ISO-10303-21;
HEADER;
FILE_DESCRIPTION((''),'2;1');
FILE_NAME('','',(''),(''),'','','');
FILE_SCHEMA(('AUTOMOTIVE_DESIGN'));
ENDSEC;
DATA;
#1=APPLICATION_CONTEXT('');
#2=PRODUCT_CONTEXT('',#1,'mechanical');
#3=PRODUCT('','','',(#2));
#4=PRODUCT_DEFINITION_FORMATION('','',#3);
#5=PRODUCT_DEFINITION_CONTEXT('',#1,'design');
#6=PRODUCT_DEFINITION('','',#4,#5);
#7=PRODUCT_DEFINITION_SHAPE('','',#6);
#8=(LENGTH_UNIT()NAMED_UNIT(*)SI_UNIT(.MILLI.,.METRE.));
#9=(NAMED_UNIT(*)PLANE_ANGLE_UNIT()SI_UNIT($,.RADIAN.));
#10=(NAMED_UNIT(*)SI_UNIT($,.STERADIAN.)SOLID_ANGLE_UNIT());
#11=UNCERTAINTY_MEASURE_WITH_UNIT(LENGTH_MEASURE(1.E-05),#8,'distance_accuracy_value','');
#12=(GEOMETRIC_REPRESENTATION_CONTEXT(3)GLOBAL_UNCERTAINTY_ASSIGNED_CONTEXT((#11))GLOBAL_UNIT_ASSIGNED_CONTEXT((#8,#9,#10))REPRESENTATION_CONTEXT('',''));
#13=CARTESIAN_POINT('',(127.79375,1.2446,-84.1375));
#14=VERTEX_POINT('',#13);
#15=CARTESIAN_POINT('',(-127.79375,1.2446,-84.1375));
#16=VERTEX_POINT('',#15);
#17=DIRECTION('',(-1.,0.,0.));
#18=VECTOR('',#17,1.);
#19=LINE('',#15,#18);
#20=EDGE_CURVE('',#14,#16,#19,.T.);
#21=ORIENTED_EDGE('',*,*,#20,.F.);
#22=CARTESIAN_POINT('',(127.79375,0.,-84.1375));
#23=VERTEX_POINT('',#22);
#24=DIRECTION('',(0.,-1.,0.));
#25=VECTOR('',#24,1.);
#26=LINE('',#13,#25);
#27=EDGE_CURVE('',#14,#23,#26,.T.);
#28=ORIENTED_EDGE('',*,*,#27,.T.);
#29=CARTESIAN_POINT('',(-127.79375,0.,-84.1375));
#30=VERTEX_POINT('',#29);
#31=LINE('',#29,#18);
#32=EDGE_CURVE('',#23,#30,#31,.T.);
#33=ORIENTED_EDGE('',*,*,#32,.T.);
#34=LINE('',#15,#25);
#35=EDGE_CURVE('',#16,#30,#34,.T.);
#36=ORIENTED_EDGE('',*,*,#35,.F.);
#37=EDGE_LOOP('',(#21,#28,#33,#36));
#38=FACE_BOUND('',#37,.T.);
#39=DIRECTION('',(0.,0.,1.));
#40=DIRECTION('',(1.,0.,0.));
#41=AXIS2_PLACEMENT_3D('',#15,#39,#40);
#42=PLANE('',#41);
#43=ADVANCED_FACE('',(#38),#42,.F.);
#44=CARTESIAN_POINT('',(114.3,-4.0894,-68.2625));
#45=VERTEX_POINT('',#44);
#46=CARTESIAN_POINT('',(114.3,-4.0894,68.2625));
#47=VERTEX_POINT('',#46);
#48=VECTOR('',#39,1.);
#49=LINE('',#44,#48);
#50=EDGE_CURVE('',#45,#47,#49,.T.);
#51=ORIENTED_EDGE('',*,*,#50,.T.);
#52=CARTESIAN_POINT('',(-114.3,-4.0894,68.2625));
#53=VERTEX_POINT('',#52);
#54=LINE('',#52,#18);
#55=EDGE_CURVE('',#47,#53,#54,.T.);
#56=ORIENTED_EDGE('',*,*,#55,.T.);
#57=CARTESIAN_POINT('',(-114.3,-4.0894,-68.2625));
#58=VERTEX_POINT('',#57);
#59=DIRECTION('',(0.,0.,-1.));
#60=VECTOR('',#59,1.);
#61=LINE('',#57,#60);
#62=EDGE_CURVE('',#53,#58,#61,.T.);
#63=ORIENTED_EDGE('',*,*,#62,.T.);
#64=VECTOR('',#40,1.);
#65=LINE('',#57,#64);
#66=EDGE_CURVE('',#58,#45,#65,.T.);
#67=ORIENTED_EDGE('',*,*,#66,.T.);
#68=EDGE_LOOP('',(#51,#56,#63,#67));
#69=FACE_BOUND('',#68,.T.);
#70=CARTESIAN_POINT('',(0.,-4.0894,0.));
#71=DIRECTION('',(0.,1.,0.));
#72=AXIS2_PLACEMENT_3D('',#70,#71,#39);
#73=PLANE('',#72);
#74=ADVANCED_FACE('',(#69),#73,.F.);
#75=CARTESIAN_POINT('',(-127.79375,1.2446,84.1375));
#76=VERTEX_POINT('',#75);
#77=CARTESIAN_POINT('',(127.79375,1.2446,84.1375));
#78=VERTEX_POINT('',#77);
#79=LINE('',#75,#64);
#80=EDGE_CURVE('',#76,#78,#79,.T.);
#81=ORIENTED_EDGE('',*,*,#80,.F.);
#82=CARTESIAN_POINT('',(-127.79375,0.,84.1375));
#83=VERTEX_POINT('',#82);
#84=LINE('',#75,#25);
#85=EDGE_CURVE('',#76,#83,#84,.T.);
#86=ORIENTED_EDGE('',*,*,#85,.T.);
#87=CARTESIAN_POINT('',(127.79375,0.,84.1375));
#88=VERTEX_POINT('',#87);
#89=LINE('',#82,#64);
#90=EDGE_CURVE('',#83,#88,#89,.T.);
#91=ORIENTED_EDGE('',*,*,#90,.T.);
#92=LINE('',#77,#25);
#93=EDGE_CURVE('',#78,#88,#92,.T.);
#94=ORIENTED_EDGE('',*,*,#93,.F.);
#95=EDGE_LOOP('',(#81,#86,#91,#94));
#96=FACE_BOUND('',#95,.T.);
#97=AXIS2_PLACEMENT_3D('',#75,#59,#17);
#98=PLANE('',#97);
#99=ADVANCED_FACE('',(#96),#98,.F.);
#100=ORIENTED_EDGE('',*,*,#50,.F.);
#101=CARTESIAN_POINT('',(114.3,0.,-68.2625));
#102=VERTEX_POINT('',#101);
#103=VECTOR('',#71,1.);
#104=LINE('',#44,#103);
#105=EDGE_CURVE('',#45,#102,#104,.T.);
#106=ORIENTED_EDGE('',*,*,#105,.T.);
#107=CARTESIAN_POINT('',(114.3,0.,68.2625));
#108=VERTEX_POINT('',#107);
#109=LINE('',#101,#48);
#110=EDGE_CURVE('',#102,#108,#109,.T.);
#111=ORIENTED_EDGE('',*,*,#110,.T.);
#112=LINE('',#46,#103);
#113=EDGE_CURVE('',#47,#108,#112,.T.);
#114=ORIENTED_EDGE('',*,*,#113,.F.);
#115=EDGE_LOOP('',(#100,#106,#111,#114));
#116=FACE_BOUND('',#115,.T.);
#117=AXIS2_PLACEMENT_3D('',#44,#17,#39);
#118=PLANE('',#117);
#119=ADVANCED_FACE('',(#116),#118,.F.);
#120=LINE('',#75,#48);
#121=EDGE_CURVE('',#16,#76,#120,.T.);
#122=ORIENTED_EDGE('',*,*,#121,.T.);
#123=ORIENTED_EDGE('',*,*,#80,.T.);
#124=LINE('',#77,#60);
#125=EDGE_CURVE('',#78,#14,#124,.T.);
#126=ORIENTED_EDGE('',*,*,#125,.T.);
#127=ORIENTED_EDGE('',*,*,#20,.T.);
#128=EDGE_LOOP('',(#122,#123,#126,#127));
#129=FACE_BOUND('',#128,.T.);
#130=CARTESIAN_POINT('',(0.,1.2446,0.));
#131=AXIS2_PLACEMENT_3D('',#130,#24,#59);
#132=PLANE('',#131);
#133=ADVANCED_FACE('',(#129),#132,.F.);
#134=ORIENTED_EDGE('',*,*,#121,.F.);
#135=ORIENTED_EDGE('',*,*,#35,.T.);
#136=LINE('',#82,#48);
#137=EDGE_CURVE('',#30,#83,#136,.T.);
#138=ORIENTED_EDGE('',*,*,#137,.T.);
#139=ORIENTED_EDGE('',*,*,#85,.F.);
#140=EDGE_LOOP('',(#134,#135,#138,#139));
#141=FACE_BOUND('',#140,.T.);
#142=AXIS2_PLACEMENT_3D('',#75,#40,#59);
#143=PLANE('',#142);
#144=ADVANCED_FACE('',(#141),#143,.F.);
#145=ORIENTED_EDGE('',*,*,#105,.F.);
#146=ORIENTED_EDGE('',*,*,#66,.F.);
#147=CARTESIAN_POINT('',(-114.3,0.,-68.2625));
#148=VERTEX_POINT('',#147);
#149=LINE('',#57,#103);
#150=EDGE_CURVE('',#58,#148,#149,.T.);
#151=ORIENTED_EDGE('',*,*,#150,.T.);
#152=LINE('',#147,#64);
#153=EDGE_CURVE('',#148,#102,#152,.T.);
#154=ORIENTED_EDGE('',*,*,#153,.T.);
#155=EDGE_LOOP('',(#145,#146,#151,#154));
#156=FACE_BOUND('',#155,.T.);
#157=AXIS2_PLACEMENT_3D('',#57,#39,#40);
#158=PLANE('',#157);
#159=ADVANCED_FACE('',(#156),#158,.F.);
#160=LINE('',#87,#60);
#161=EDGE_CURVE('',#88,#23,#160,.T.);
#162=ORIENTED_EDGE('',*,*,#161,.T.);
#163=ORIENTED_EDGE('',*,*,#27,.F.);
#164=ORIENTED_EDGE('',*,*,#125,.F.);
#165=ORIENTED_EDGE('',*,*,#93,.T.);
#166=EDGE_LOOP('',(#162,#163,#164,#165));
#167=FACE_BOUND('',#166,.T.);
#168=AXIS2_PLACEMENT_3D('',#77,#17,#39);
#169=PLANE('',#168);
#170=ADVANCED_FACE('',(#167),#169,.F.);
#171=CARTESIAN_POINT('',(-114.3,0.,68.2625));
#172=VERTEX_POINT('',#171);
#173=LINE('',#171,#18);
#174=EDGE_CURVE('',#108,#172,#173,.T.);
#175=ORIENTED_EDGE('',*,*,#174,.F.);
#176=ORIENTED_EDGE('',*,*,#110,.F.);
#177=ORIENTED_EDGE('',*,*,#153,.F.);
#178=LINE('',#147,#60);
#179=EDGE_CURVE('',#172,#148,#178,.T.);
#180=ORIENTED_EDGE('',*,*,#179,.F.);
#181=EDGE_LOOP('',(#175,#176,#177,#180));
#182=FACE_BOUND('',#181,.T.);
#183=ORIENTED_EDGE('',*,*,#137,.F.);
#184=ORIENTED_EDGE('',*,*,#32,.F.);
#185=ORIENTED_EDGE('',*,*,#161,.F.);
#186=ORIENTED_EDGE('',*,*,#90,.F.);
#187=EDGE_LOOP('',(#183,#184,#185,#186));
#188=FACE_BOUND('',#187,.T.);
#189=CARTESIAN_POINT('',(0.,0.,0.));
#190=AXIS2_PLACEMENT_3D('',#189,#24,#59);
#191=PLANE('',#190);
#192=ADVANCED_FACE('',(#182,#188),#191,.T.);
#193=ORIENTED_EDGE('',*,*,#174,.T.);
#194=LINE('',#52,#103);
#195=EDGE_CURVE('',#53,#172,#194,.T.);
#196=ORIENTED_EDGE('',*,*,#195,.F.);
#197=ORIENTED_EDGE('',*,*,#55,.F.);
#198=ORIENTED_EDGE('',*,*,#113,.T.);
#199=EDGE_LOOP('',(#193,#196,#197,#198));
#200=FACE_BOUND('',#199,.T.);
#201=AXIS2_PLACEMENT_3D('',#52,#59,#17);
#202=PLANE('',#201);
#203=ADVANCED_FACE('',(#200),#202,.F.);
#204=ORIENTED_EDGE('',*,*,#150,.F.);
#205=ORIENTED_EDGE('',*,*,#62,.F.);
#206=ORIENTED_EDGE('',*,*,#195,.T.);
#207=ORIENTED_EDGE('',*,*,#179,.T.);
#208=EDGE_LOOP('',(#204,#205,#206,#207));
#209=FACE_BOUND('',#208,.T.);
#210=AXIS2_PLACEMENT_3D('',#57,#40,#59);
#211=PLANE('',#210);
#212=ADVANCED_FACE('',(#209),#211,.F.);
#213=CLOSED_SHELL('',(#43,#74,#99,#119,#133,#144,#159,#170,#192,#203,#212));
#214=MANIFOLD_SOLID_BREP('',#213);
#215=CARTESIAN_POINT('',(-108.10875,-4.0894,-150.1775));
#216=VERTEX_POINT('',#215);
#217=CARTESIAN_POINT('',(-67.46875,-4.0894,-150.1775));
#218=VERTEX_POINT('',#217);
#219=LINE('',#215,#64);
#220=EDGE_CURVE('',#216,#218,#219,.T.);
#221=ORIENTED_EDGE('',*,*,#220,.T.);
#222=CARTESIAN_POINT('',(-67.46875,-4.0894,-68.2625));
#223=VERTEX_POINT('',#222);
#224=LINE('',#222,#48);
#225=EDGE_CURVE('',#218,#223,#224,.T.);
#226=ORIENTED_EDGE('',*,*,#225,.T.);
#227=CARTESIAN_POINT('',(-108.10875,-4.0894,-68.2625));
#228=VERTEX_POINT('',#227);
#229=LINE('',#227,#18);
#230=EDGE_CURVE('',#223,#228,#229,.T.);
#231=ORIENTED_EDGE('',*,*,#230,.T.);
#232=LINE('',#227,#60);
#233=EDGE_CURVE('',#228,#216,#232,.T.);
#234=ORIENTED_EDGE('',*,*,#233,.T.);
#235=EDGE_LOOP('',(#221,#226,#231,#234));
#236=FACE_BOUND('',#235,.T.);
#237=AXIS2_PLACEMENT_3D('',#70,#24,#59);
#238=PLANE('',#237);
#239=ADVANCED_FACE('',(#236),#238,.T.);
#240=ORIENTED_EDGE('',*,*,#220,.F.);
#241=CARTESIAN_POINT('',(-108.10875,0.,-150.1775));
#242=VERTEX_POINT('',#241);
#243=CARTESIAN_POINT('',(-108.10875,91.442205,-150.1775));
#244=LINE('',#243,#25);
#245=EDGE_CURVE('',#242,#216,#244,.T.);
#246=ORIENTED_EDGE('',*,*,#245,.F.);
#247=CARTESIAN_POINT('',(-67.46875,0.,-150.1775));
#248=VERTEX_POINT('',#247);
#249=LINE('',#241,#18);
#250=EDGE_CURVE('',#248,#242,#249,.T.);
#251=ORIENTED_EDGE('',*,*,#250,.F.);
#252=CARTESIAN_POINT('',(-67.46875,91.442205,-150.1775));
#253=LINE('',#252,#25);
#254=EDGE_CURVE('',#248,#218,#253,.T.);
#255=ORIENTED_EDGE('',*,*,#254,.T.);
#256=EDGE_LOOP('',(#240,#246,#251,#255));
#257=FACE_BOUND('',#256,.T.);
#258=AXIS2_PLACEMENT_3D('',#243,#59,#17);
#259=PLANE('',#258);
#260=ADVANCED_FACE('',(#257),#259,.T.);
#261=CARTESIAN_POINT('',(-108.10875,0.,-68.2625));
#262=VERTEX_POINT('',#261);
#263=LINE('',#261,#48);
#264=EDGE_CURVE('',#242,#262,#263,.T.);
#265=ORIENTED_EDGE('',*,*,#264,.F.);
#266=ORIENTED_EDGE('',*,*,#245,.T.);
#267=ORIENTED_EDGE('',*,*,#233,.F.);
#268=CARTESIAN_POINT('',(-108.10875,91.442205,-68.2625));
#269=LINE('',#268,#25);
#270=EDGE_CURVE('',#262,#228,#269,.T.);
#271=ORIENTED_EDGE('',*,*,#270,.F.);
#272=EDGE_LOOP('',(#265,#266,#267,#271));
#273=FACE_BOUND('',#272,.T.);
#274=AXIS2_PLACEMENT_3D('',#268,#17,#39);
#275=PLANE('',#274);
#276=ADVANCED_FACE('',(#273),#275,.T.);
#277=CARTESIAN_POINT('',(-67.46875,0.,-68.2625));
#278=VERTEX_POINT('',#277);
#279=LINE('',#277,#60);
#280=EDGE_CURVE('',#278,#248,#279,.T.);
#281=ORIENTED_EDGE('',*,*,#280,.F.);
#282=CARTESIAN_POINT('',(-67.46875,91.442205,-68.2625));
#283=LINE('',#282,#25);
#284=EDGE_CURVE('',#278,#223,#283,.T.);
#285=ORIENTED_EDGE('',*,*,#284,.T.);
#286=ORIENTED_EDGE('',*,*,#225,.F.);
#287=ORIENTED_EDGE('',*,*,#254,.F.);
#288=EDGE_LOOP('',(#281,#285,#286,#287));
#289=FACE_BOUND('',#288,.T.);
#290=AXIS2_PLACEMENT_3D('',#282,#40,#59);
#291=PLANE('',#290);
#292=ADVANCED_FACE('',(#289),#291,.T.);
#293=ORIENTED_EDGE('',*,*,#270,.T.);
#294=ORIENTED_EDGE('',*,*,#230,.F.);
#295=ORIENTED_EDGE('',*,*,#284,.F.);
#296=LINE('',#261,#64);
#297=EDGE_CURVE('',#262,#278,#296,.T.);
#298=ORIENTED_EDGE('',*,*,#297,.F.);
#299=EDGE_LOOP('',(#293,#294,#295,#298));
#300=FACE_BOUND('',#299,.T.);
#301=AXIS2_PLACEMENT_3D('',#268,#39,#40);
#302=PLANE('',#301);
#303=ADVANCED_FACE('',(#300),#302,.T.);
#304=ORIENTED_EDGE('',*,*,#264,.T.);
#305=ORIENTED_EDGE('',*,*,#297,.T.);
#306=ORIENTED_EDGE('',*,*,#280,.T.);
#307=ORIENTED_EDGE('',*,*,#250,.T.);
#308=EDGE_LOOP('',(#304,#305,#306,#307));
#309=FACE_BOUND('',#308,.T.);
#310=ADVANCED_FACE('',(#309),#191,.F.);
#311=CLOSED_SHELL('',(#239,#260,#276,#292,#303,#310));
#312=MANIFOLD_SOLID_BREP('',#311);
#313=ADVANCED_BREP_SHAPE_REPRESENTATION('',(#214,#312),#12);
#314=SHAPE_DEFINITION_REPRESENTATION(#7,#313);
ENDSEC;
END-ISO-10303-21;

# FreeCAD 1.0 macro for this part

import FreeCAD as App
import Part
import Sketcher
from FreeCAD import Vector
Q = App.Units.Quantity


def add_polygon(sketch, points):
    """Adds a closed chain of lines whose ends are joined by coincident constraints."""
    first, n = sketch.GeometryCount, len(points)
    for a, b in zip(points, points[1:] + points[:1]):
        sketch.addGeometry(Part.LineSegment(App.Vector(*a, 0), App.Vector(*b, 0)), False)
    for i in range(n):
        sketch.addConstraint(Sketcher.Constraint("Coincident", first + i, 2, first + (i + 1) % n, 1))

doc = App.newDocument("Part")
body = doc.addObject("PartDesign::Body", "Body")

sketch1 = doc.addObject("Sketcher::SketchObject", "Sketch")
body.addObject(sketch1)
sketch1.AttachmentSupport = (doc.XZ_Plane, [""])
sketch1.MapMode = "FlatFace"
add_polygon(sketch1, [(-128, -84), (-128, 84), (128, 84), (128, -84)])
sketch1.addConstraint([
    Sketcher.Constraint("Vertical", 0),
    Sketcher.Constraint("Horizontal", 1),
    Sketcher.Constraint("Vertical", 2),
    Sketcher.Constraint("Horizontal", 3),
    Sketcher.Constraint("Symmetric", 0, 2, 2, 2, -1, 1),
    Sketcher.Constraint("DistanceX", 1, 1, 1, 2, Q("10.0625 in")),
    Sketcher.Constraint("DistanceY", 0, 1, 0, 2, Q("6.625 in")),
])
pad1 = doc.addObject("PartDesign::Pad", "Pad")
body.addObject(pad1)
pad1.Profile = sketch1
pad1.Length = Q("0.049 in")
pad1.Reversed = True

sketch2 = doc.addObject("Sketcher::SketchObject", "Sketch001")
body.addObject(sketch2)
sketch2.AttachmentSupport = (doc.XZ_Plane, [""])
sketch2.MapMode = "FlatFace"
add_polygon(sketch2, [(-114, 68), (-114, -68), (114, -68), (114, 68)])
sketch2.addConstraint([
    Sketcher.Constraint("Vertical", 0),
    Sketcher.Constraint("Horizontal", 1),
    Sketcher.Constraint("Vertical", 2),
    Sketcher.Constraint("Horizontal", 3),
    Sketcher.Constraint("Symmetric", 0, 2, 2, 2, -1, 1),
    Sketcher.Constraint("DistanceX", 1, 1, 1, 2, Q("9 in")),
    Sketcher.Constraint("DistanceY", 0, 2, 0, 1, Q("5.375 in")),
])
pad2 = doc.addObject("PartDesign::Pad", "Pad001")
body.addObject(pad2)
pad2.Profile = sketch2
pad2.Length = Q("0.161 in")
body2 = doc.addObject("PartDesign::Body", "Body001")

sketch3 = doc.addObject("Sketcher::SketchObject", "Sketch002")
body2.addObject(sketch3)
sketch3.AttachmentSupport = (doc.getObject("XZ_Plane001"), [""])
sketch3.MapMode = "FlatFace"
sketch3.AttachmentOffset = App.Placement(Vector(0, 0, 0.161 * 25.4), App.Rotation())
add_polygon(sketch3, [(-108, -68), (-108, -150), (-67, -150), (-67, -68)])
sketch3.addConstraint([
    Sketcher.Constraint("Vertical", 0),
    Sketcher.Constraint("Horizontal", 1),
    Sketcher.Constraint("Vertical", 2),
    Sketcher.Constraint("Horizontal", 3),
    Sketcher.Constraint("DistanceX", 1, 1, 1, 2, Q("1.6 in")),
    Sketcher.Constraint("DistanceY", 0, 2, 0, 1, Q("3.225 in")),
    Sketcher.Constraint("DistanceX", 1, 2, -1, 1, Q("2.65625 in")),
    Sketcher.Constraint("DistanceY", 2, 2, -1, 1, Q("2.6875 in")),
])
pad3 = doc.addObject("PartDesign::Pad", "Pad002")
body2.addObject(pad3)
pad3.Profile = sketch3
pad3.Length = Q("0.161 in")
pad3.Reversed = True

doc.recompute()
